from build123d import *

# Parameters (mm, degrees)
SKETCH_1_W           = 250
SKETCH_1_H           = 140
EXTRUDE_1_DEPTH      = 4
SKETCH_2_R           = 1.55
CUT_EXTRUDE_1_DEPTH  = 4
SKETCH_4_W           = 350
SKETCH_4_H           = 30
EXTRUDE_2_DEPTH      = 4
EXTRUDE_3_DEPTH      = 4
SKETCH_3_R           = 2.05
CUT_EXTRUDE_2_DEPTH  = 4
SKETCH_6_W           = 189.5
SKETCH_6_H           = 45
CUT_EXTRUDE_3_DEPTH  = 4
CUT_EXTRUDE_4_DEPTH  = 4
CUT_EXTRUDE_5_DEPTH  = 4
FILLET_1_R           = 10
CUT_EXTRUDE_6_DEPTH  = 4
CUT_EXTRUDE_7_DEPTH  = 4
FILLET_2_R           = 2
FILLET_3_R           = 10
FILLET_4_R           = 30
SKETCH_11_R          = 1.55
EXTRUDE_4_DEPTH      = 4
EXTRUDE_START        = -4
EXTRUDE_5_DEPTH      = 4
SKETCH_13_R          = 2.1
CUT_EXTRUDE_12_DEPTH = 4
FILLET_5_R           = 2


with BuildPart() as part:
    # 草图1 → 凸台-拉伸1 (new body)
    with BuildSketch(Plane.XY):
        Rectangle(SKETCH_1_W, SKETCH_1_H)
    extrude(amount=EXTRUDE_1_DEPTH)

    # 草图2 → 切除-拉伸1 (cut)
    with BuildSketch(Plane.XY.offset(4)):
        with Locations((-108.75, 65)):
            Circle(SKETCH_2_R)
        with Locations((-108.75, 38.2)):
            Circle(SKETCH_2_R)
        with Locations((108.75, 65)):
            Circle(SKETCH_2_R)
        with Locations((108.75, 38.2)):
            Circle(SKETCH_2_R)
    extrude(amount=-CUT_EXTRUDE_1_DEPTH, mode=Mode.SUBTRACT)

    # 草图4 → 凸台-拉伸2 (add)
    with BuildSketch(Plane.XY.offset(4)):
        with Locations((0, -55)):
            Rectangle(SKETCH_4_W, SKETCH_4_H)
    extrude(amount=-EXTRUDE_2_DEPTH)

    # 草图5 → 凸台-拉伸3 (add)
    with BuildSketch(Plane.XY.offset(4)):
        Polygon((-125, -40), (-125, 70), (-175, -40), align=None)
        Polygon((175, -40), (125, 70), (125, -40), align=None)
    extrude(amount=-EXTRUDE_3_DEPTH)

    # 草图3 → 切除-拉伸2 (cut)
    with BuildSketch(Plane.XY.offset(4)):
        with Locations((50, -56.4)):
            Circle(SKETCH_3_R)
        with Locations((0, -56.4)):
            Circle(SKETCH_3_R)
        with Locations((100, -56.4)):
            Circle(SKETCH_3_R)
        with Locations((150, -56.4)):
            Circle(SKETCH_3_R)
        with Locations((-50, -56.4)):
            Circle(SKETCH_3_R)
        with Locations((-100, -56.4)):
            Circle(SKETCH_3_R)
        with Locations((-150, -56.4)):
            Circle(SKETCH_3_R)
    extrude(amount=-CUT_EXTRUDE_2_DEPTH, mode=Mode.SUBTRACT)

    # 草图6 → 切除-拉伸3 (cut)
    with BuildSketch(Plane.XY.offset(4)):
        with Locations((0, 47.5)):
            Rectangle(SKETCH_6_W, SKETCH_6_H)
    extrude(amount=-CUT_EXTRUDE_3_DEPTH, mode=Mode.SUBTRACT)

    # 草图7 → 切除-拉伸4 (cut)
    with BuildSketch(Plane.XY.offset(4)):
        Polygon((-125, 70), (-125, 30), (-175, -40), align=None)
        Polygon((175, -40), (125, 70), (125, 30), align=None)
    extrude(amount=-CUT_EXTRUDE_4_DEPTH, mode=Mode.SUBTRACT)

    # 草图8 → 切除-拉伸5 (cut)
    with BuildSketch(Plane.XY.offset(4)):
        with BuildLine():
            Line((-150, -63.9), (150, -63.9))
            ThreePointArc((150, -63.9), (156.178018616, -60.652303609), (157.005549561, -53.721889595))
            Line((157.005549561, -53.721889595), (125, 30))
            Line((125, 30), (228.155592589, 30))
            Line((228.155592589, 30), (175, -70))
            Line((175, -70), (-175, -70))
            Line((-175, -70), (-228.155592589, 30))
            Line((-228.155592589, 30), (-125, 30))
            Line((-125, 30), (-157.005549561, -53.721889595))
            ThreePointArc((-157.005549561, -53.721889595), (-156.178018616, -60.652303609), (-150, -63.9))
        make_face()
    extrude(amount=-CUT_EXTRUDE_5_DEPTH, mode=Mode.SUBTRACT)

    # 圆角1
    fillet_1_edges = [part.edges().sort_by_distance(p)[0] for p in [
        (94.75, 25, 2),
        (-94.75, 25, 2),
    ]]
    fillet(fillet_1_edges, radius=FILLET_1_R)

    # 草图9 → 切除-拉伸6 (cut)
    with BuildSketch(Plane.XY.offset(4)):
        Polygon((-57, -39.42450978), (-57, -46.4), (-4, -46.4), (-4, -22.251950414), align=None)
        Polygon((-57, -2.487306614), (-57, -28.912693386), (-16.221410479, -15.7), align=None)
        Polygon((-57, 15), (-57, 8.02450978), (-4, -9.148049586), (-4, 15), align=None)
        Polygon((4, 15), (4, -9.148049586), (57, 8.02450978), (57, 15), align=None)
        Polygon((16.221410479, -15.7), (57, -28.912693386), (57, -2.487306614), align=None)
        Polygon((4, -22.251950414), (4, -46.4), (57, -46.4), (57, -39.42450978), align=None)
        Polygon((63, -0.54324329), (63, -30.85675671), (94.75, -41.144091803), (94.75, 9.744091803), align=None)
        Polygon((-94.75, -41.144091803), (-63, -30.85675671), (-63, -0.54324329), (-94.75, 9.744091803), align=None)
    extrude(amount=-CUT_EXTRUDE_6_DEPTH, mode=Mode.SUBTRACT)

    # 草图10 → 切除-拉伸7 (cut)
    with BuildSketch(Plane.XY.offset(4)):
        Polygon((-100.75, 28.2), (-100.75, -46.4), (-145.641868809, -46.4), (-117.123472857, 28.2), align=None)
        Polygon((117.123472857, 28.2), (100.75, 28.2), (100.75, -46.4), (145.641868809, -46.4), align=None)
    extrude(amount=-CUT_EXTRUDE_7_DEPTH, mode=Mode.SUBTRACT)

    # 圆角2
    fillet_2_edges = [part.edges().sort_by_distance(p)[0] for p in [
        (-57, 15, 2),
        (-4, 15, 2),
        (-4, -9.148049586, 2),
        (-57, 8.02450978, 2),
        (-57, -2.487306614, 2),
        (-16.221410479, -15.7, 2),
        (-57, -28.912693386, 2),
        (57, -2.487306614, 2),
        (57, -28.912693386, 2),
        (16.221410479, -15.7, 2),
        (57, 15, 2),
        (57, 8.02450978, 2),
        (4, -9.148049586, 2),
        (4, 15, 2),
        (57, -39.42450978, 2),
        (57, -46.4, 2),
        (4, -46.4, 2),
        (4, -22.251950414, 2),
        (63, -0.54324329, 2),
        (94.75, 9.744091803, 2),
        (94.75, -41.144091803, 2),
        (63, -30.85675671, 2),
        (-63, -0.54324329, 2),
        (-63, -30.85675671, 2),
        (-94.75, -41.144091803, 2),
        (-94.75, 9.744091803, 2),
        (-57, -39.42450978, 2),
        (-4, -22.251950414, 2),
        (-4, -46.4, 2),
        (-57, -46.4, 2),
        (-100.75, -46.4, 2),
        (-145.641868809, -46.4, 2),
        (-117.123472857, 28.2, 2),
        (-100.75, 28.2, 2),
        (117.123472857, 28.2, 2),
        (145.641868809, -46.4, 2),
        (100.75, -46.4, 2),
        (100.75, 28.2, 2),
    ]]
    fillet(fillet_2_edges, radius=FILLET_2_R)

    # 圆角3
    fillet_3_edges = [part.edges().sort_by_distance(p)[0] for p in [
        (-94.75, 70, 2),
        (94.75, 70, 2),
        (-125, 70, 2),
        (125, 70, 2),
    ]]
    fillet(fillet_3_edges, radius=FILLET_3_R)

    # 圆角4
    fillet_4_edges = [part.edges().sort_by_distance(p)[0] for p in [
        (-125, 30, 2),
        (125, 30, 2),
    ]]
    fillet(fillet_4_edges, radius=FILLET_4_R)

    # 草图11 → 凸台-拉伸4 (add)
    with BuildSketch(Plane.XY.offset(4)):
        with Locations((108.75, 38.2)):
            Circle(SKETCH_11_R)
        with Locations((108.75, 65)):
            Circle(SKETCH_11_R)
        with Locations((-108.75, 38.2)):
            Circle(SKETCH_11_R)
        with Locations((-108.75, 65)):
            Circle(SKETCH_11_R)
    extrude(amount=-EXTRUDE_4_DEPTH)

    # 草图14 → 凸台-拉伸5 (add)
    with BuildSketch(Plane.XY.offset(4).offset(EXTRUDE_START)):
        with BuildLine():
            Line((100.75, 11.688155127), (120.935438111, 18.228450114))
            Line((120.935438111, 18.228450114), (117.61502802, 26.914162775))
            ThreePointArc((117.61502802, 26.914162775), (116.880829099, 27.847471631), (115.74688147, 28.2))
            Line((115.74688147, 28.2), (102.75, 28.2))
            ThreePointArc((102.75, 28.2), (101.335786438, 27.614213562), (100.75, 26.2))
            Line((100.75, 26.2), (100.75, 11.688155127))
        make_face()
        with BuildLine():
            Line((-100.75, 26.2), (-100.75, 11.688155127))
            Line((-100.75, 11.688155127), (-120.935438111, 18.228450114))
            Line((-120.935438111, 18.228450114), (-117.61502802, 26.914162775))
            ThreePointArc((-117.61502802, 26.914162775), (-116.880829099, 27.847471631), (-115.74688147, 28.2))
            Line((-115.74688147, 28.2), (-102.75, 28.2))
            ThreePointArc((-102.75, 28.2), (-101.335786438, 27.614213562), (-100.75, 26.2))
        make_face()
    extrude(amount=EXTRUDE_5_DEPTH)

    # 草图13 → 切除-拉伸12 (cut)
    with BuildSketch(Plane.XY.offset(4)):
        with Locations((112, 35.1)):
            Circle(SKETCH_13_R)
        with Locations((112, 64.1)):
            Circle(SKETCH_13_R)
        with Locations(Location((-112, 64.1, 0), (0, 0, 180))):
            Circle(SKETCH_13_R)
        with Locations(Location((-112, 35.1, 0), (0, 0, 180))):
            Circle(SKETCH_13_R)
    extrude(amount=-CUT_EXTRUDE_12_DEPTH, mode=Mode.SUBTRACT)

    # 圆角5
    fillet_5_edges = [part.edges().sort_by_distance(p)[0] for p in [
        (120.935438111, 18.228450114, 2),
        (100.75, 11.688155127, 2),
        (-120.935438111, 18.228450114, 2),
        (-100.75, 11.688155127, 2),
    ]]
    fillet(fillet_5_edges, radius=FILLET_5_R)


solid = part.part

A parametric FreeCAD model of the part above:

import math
import FreeCAD as App
import Part
import Sketcher
from FreeCAD import Vector
Q = App.Units.Quantity


def edges_at(feature, points):
    """Names of the edges that pass closest to the given points."""
    edges = feature.Shape.Edges
    near = lambda p: min(range(len(edges)), key=lambda i: edges[i].distToShape(Part.Vertex(*p))[0])
    return sorted({f"Edge{near(p) + 1}" for p in points})


def add_polygon(sketch, points):
    """Adds a closed chain of lines whose ends are joined by coincident constraints."""
    first, n = sketch.GeometryCount, len(points)
    for a, b in zip(points, points[1:] + points[:1]):
        sketch.addGeometry(Part.LineSegment(App.Vector(*a, 0), App.Vector(*b, 0)), False)
    for i in range(n):
        sketch.addConstraint(Sketcher.Constraint("Coincident", first + i, 2, first + (i + 1) % n, 1))

doc = App.newDocument("Part")
body = doc.addObject("PartDesign::Body", "Body")

# Sketch on XY plane
sketch1 = doc.addObject("Sketcher::SketchObject", "Sketch")
body.addObject(sketch1)
sketch1.AttachmentSupport = (doc.XY_Plane, [""])
sketch1.MapMode = "FlatFace"
add_polygon(sketch1, [(-125, 70), (-125, -70), (125, -70), (125, 70)])  # lines 0-3
sketch1.addConstraint(Sketcher.Constraint("Vertical", 0))
sketch1.addConstraint(Sketcher.Constraint("Horizontal", 1))
sketch1.addConstraint(Sketcher.Constraint("Vertical", 2))
sketch1.addConstraint(Sketcher.Constraint("Horizontal", 3))
sketch1.addConstraint(Sketcher.Constraint("Symmetric", 0, 2, 2, 2, -1, 1))
sketch1.addConstraint(Sketcher.Constraint("DistanceX", 1, 1, 1, 2, Q("250 mm")))
sketch1.addConstraint(Sketcher.Constraint("DistanceY", 0, 2, 0, 1, Q("140 mm")))
pad1 = doc.addObject("PartDesign::Pad", "Pad")
body.addObject(pad1)
pad1.Profile = sketch1
pad1.Length = 4

# Sketch on XY plane
sketch2 = doc.addObject("Sketcher::SketchObject", "Sketch001")
body.addObject(sketch2)
sketch2.AttachmentSupport = (doc.XY_Plane, [""])
sketch2.MapMode = "FlatFace"
sketch2.AttachmentOffset = App.Placement(Vector(0, 0, 4), App.Rotation())
sketch2.addGeometry(Part.Circle(Vector(-108.75, 65, 0), Vector(0, 0, 1), 1.55), False)
sketch2.addGeometry(Part.Circle(Vector(-108.75, 38.2, 0), Vector(0, 0, 1), 1.55), False)
sketch2.addGeometry(Part.Circle(Vector(108.75, 65, 0), Vector(0, 0, 1), 1.55), False)
sketch2.addGeometry(Part.Circle(Vector(108.75, 38.2, 0), Vector(0, 0, 1), 1.55), False)
sketch2.addConstraint(Sketcher.Constraint("Equal", 0, 1))
sketch2.addConstraint(Sketcher.Constraint("Equal", 1, 2))
sketch2.addConstraint(Sketcher.Constraint("Equal", 2, 3))
sketch2.addConstraint(Sketcher.Constraint("Symmetric", 0, 3, 2, 3, -2))
sketch2.addConstraint(Sketcher.Constraint("Symmetric", 1, 3, 3, 3, -2))
sketch2.addConstraint(Sketcher.Constraint("Vertical", 0, 3, 1, 3))
sketch2.addConstraint(Sketcher.Constraint("Diameter", 0, Q("3.1 mm")))
sketch2.addConstraint(Sketcher.Constraint("DistanceY", -1, 1, 0, 3, Q("65 mm")))
sketch2.addConstraint(Sketcher.Constraint("DistanceY", -1, 1, 1, 3, Q("38.2 mm")))
sketch2.addConstraint(Sketcher.Constraint("DistanceX", 0, 3, 2, 3, Q("217.5 mm")))
pocket1 = doc.addObject("PartDesign::Pocket", "Pocket")
body.addObject(pocket1)
pocket1.Profile = sketch2
pocket1.Length = 4

# Sketch on XY plane
sketch3 = doc.addObject("Sketcher::SketchObject", "Sketch002")
body.addObject(sketch3)
sketch3.AttachmentSupport = (doc.XY_Plane, [""])
sketch3.MapMode = "FlatFace"
sketch3.AttachmentOffset = App.Placement(Vector(0, 0, 4), App.Rotation())
add_polygon(sketch3, [(-175, -40), (-175, -70), (175, -70), (175, -40)])  # lines 0-3
sketch3.addConstraint(Sketcher.Constraint("Vertical", 0))
sketch3.addConstraint(Sketcher.Constraint("Horizontal", 1))
sketch3.addConstraint(Sketcher.Constraint("Vertical", 2))
sketch3.addConstraint(Sketcher.Constraint("Horizontal", 3))
sketch3.addConstraint(Sketcher.Constraint("DistanceX", 1, 1, 1, 2, Q("350 mm")))
sketch3.addConstraint(Sketcher.Constraint("DistanceY", 0, 2, 0, 1, Q("30 mm")))
sketch3.addConstraint(Sketcher.Constraint("DistanceX", 0, 2, -1, 1, Q("175 mm")))
sketch3.addConstraint(Sketcher.Constraint("DistanceY", 0, 2, -1, 1, Q("70 mm")))
pad2 = doc.addObject("PartDesign::Pad", "Pad001")
body.addObject(pad2)
pad2.Profile = sketch3
pad2.Length = 4
pad2.Reversed = True

# Sketch on XY plane
sketch4 = doc.addObject("Sketcher::SketchObject", "Sketch003")
body.addObject(sketch4)
sketch4.AttachmentSupport = (doc.XY_Plane, [""])
sketch4.MapMode = "FlatFace"
sketch4.AttachmentOffset = App.Placement(Vector(0, 0, 4), App.Rotation())
add_polygon(sketch4, [(-125, -40), (-125, 70), (-175, -40)])  # lines 0-2
add_polygon(sketch4, [(175, -40), (125, 70), (125, -40)])  # lines 3-5
sketch4.addConstraint(Sketcher.Constraint("Vertical", 0))
sketch4.addConstraint(Sketcher.Constraint("Horizontal", 2))
sketch4.addConstraint(Sketcher.Constraint("Vertical", 4))
sketch4.addConstraint(Sketcher.Constraint("Horizontal", 5))
sketch4.addConstraint(Sketcher.Constraint("Symmetric", 0, 2, 3, 2, -2))
sketch4.addConstraint(Sketcher.Constraint("Symmetric", 1, 2, 5, 2, -2))
sketch4.addConstraint(Sketcher.Constraint("DistanceX", 2, 1, 2, 2, Q("50 mm")))
sketch4.addConstraint(Sketcher.Constraint("DistanceY", 0, 1, 0, 2, Q("110 mm")))
sketch4.addConstraint(Sketcher.Constraint("DistanceX", 0, 2, -1, 1, Q("125 mm")))
sketch4.addConstraint(Sketcher.Constraint("DistanceY", -1, 1, 0, 2, Q("70 mm")))
pad3 = doc.addObject("PartDesign::Pad", "Pad002")
body.addObject(pad3)
pad3.Profile = sketch4
pad3.Length = 4
pad3.Reversed = True

# Sketch on XY plane
sketch5 = doc.addObject("Sketcher::SketchObject", "Sketch004")
body.addObject(sketch5)
sketch5.AttachmentSupport = (doc.XY_Plane, [""])
sketch5.MapMode = "FlatFace"
sketch5.AttachmentOffset = App.Placement(Vector(0, 0, 4), App.Rotation())
sketch5.addGeometry(Part.Circle(Vector(50, -56.4, 0), Vector(0, 0, 1), 2.05), False)
sketch5.addGeometry(Part.Circle(Vector(0, -56.4, 0), Vector(0, 0, 1), 2.05), False)
sketch5.addGeometry(Part.Circle(Vector(100, -56.4, 0), Vector(0, 0, 1), 2.05), False)
sketch5.addGeometry(Part.Circle(Vector(150, -56.4, 0), Vector(0, 0, 1), 2.05), False)
sketch5.addGeometry(Part.Circle(Vector(-50, -56.4, 0), Vector(0, 0, 1), 2.05), False)
sketch5.addGeometry(Part.Circle(Vector(-100, -56.4, 0), Vector(0, 0, 1), 2.05), False)
sketch5.addGeometry(Part.Circle(Vector(-150, -56.4, 0), Vector(0, 0, 1), 2.05), False)
sketch5.addConstraint(Sketcher.Constraint("Equal", 0, 1))
sketch5.addConstraint(Sketcher.Constraint("Equal", 1, 2))
sketch5.addConstraint(Sketcher.Constraint("Equal", 2, 3))
sketch5.addConstraint(Sketcher.Constraint("Equal", 3, 4))
sketch5.addConstraint(Sketcher.Constraint("Equal", 4, 5))
sketch5.addConstraint(Sketcher.Constraint("Equal", 5, 6))
sketch5.addConstraint(Sketcher.Constraint("Symmetric", 0, 3, 4, 3, -2))
sketch5.addConstraint(Sketcher.Constraint("Symmetric", 2, 3, 5, 3, -2))
sketch5.addConstraint(Sketcher.Constraint("Symmetric", 3, 3, 6, 3, -2))
sketch5.addConstraint(Sketcher.Constraint("PointOnObject", 1, 3, -2))
sketch5.addConstraint(Sketcher.Constraint("Horizontal", 0, 3, 1, 3))
sketch5.addConstraint(Sketcher.Constraint("Horizontal", 1, 3, 2, 3))
sketch5.addConstraint(Sketcher.Constraint("Horizontal", 2, 3, 3, 3))
sketch5.addConstraint(Sketcher.Constraint("Diameter", 0, Q("4.1 mm")))
sketch5.addConstraint(Sketcher.Constraint("DistanceX", -1, 1, 0, 3, Q("50 mm")))
sketch5.addConstraint(Sketcher.Constraint("DistanceX", -1, 1, 2, 3, Q("100 mm")))
sketch5.addConstraint(Sketcher.Constraint("DistanceX", -1, 1, 3, 3, Q("150 mm")))
sketch5.addConstraint(Sketcher.Constraint("DistanceY", 0, 3, -1, 1, Q("56.4 mm")))
pocket2 = doc.addObject("PartDesign::Pocket", "Pocket001")
body.addObject(pocket2)
pocket2.Profile = sketch5
pocket2.Length = 4

# Sketch on XY plane
sketch6 = doc.addObject("Sketcher::SketchObject", "Sketch005")
body.addObject(sketch6)
sketch6.AttachmentSupport = (doc.XY_Plane, [""])
sketch6.MapMode = "FlatFace"
sketch6.AttachmentOffset = App.Placement(Vector(0, 0, 4), App.Rotation())
add_polygon(sketch6, [(-94.75, 70), (-94.75, 25), (94.75, 25), (94.75, 70)])  # lines 0-3
sketch6.addConstraint(Sketcher.Constraint("Vertical", 0))
sketch6.addConstraint(Sketcher.Constraint("Horizontal", 1))
sketch6.addConstraint(Sketcher.Constraint("Vertical", 2))
sketch6.addConstraint(Sketcher.Constraint("Horizontal", 3))
sketch6.addConstraint(Sketcher.Constraint("DistanceY", 0, 2, 0, 1, Q("45 mm")))
sketch6.addConstraint(Sketcher.Constraint("DistanceX", 1, 1, 1, 2, Q("189.5 mm")))
sketch6.addConstraint(Sketcher.Constraint("DistanceY", -1, 1, 0, 2, Q("25 mm")))
sketch6.addConstraint(Sketcher.Constraint("DistanceX", 0, 2, -1, 1, Q("94.75 mm")))
pocket3 = doc.addObject("PartDesign::Pocket", "Pocket002")
body.addObject(pocket3)
pocket3.Profile = sketch6
pocket3.Length = 4

# Sketch on XY plane
sketch7 = doc.addObject("Sketcher::SketchObject", "Sketch006")
body.addObject(sketch7)
sketch7.AttachmentSupport = (doc.XY_Plane, [""])
sketch7.MapMode = "FlatFace"
sketch7.AttachmentOffset = App.Placement(Vector(0, 0, 4), App.Rotation())
add_polygon(sketch7, [(-125, 30), (-125, 70), (-175, -40)])  # lines 0-2
add_polygon(sketch7, [(175, -40), (125, 70), (125, 30)])  # lines 3-5
sketch7.addConstraint(Sketcher.Constraint("Vertical", 0))
sketch7.addConstraint(Sketcher.Constraint("Vertical", 4))
sketch7.addConstraint(Sketcher.Constraint("Symmetric", 0, 2, 3, 2, -2))
sketch7.addConstraint(Sketcher.Constraint("Symmetric", 1, 2, 5, 2, -2))
sketch7.addConstraint(Sketcher.Constraint("Horizontal", 2, 2, 4, 2))
sketch7.addConstraint(Sketcher.Constraint("DistanceY", 0, 1, 0, 2, Q("40 mm")))
sketch7.addConstraint(Sketcher.Constraint("DistanceX", 0, 2, -1, 1, Q("125 mm")))
sketch7.addConstraint(Sketcher.Constraint("DistanceY", -1, 1, 0, 2, Q("70 mm")))
sketch7.addConstraint(Sketcher.Constraint("DistanceX", 1, 2, -1, 1, Q("175 mm")))
sketch7.addConstraint(Sketcher.Constraint("DistanceY", 1, 2, -1, 1, Q("40 mm")))
pocket4 = doc.addObject("PartDesign::Pocket", "Pocket003")
body.addObject(pocket4)
pocket4.Profile = sketch7
pocket4.Length = 4

# Sketch on XY plane
sketch8 = doc.addObject("Sketcher::SketchObject", "Sketch007")
body.addObject(sketch8)
sketch8.AttachmentSupport = (doc.XY_Plane, [""])
sketch8.MapMode = "FlatFace"
sketch8.AttachmentOffset = App.Placement(Vector(0, 0, 4), App.Rotation())
sketch8.addGeometry(Part.LineSegment(Vector(150, -63.9, 0), Vector(-150, -63.9, 0)), False)
sketch8.addGeometry(Part.ArcOfCircle(Part.Circle(Vector(-150, -56.4, 0), Vector(0, 0, 1), 7.5), math.radians(159.078938), math.radians(270)), False)
sketch8.addGeometry(Part.LineSegment(Vector(-157.00555, -53.72189, 0), Vector(-125, 30, 0)), False)
sketch8.addGeometry(Part.LineSegment(Vector(-125, 30, 0), Vector(-228.155593, 30, 0)), False)
sketch8.addGeometry(Part.LineSegment(Vector(-228.155593, 30, 0), Vector(-175, -70, 0)), False)
sketch8.addGeometry(Part.LineSegment(Vector(-175, -70, 0), Vector(175, -70, 0)), False)
sketch8.addGeometry(Part.LineSegment(Vector(175, -70, 0), Vector(228.155593, 30, 0)), False)
sketch8.addGeometry(Part.LineSegment(Vector(228.155593, 30, 0), Vector(125, 30, 0)), False)
sketch8.addGeometry(Part.LineSegment(Vector(125, 30, 0), Vector(157.00555, -53.72189, 0)), False)
sketch8.addGeometry(Part.ArcOfCircle(Part.Circle(Vector(150, -56.4, 0), Vector(0, 0, 1), 7.5), math.radians(-90), math.radians(20.921062)), False)
sketch8.addConstraint(Sketcher.Constraint("Tangent", 0, 2, 1, 2))
sketch8.addConstraint(Sketcher.Constraint("Tangent", 1, 1, 2, 1))
sketch8.addConstraint(Sketcher.Constraint("Coincident", 2, 2, 3, 1))
sketch8.addConstraint(Sketcher.Constraint("Coincident", 3, 2, 4, 1))
sketch8.addConstraint(Sketcher.Constraint("Coincident", 4, 2, 5, 1))
sketch8.addConstraint(Sketcher.Constraint("Coincident", 5, 2, 6, 1))
sketch8.addConstraint(Sketcher.Constraint("Coincident", 6, 2, 7, 1))
sketch8.addConstraint(Sketcher.Constraint("Coincident", 7, 2, 8, 1))
sketch8.addConstraint(Sketcher.Constraint("Tangent", 8, 2, 9, 2))
sketch8.addConstraint(Sketcher.Constraint("Tangent", 9, 1, 0, 1))
sketch8.addConstraint(Sketcher.Constraint("Horizontal", 0))
sketch8.addConstraint(Sketcher.Constraint("Horizontal", 3))
sketch8.addConstraint(Sketcher.Constraint("Horizontal", 5))
sketch8.addConstraint(Sketcher.Constraint("Horizontal", 7))
sketch8.addConstraint(Sketcher.Constraint("Equal", 1, 9))
sketch8.addConstraint(Sketcher.Constraint("Symmetric", 3, 2, 6, 2, -2))
sketch8.addConstraint(Sketcher.Constraint("Symmetric", 1, 1, 8, 2, -2))
sketch8.addConstraint(Sketcher.Constraint("Equal", 4, 6))
sketch8.addConstraint(Sketcher.Constraint("Radius", 1, Q("7.5 mm")))
sketch8.addConstraint(Sketcher.Constraint("DistanceX", 0, 2, 0, 1, Q("300 mm")))
sketch8.addConstraint(Sketcher.Constraint("DistanceX", 5, 1, 5, 2, Q("350 mm")))
sketch8.addConstraint(Sketcher.Constraint("DistanceX", 2, 2, -1, 1, Q("125 mm")))
sketch8.addConstraint(Sketcher.Constraint("DistanceY", -1, 1, 2, 2, Q("30 mm")))
sketch8.addConstraint(Sketcher.Constraint("DistanceY", 4, 2, -1, 1, Q("70 mm")))
sketch8.addConstraint(Sketcher.Constraint("DistanceY", 1, 3, -1, 1, Q("56.4 mm")))
sketch8.addConstraint(Sketcher.Constraint("Distance", 4, Q("113.249799 mm")))
pocket5 = doc.addObject("PartDesign::Pocket", "Pocket004")
body.addObject(pocket5)
pocket5.Profile = sketch8
pocket5.Length = 4
doc.recompute()

fillet = doc.addObject("PartDesign::Fillet", "Fillet")
body.addObject(fillet)
fillet.Base = (pocket5, edges_at(pocket5, [(94.75, 25, 2), (-94.75, 25, 2)]))
fillet.Radius = 10

# Sketch on XY plane
sketch9 = doc.addObject("Sketcher::SketchObject", "Sketch008")
body.addObject(sketch9)
sketch9.AttachmentSupport = (doc.XY_Plane, [""])
sketch9.MapMode = "FlatFace"
sketch9.AttachmentOffset = App.Placement(Vector(0, 0, 4), App.Rotation())
add_polygon(sketch9, [(-57, -39.42451), (-57, -46.4), (-4, -46.4), (-4, -22.25195)])  # lines 0-3
add_polygon(sketch9, [(-57, -2.487307), (-57, -28.912693), (-16.22141, -15.7)])  # lines 4-6
add_polygon(sketch9, [(-57, 15), (-57, 8.02451), (-4, -9.14805), (-4, 15)])  # lines 7-10
add_polygon(sketch9, [(4, 15), (4, -9.14805), (57, 8.02451), (57, 15)])  # lines 11-14
add_polygon(sketch9, [(16.22141, -15.7), (57, -28.912693), (57, -2.487307)])  # lines 15-17
add_polygon(sketch9, [(4, -22.25195), (4, -46.4), (57, -46.4), (57, -39.42451)])  # lines 18-21
add_polygon(sketch9, [(63, -0.543243), (63, -30.856757), (94.75, -41.144092), (94.75, 9.744092)])  # lines 22-25
add_polygon(sketch9, [(-94.75, -41.144092), (-63, -30.856757), (-63, -0.543243), (-94.75, 9.744092)])  # lines 26-29
sketch9.addConstraint(Sketcher.Constraint("Vertical", 0))
sketch9.addConstraint(Sketcher.Constraint("Horizontal", 1))
sketch9.addConstraint(Sketcher.Constraint("Vertical", 2))
sketch9.addConstraint(Sketcher.Constraint("Vertical", 4))
sketch9.addConstraint(Sketcher.Constraint("Vertical", 7))
sketch9.addConstraint(Sketcher.Constraint("Vertical", 9))
sketch9.addConstraint(Sketcher.Constraint("Horizontal", 10))
sketch9.addConstraint(Sketcher.Constraint("Vertical", 11))
sketch9.addConstraint(Sketcher.Constraint("Vertical", 13))
sketch9.addConstraint(Sketcher.Constraint("Horizontal", 14))
sketch9.addConstraint(Sketcher.Constraint("Vertical", 16))
sketch9.addConstraint(Sketcher.Constraint("Vertical", 18))
sketch9.addConstraint(Sketcher.Constraint("Horizontal", 19))
sketch9.addConstraint(Sketcher.Constraint("Vertical", 20))
sketch9.addConstraint(Sketcher.Constraint("Vertical", 22))
sketch9.addConstraint(Sketcher.Constraint("Vertical", 24))
sketch9.addConstraint(Sketcher.Constraint("Vertical", 27))
sketch9.addConstraint(Sketcher.Constraint("Vertical", 29))
sketch9.addConstraint(Sketcher.Constraint("Symmetric", 8, 2, 11, 2, -2))
sketch9.addConstraint(Sketcher.Constraint("Symmetric", 7, 2, 12, 2, -2))
sketch9.addConstraint(Sketcher.Constraint("Symmetric", 4, 2, 15, 2, -2))
sketch9.addConstraint(Sketcher.Constraint("Symmetric", 5, 2, 17, 2, -2))
sketch9.addConstraint(Sketcher.Constraint("Symmetric", 1, 2, 18, 2, -2))
sketch9.addConstraint(Sketcher.Constraint("Symmetric", 3, 2, 20, 2, -2))
sketch9.addConstraint(Sketcher.Constraint("Symmetric", 22, 2, 26, 2, -2))
sketch9.addConstraint(Sketcher.Constraint("Symmetric", 24, 2, 28, 2, -2))
sketch9.addConstraint(Sketcher.Constraint("Parallel", 3, 5))
sketch9.addConstraint(Sketcher.Constraint("Parallel", 6, 8))
sketch9.addConstraint(Sketcher.Constraint("Parallel", 5, 12))
sketch9.addConstraint(Sketcher.Constraint("Parallel", 12, 17))
sketch9.addConstraint(Sketcher.Constraint("Parallel", 15, 21))
sketch9.addConstraint(Sketcher.Constraint("Parallel", 21, 23))
sketch9.addConstraint(Sketcher.Constraint("Parallel", 17, 25))
sketch9.addConstraint(Sketcher.Constraint("Parallel", 25, 26))
sketch9.addConstraint(Sketcher.Constraint("Parallel", 23, 28))
sketch9.addConstraint(Sketcher.Constraint("Horizontal", 10, 2, 13, 2))
sketch9.addConstraint(Sketcher.Constraint("Vertical", 3, 2, 4, 2))
sketch9.addConstraint(Sketcher.Constraint("Vertical", 6, 2, 7, 2))
sketch9.addConstraint(Sketcher.Constraint("Vertical", 2, 2, 8, 2))
sketch9.addConstraint(Sketcher.Constraint("Equal", 0, 7))
sketch9.addConstraint(Sketcher.Constraint("DistanceX", 1, 1, 1, 2, Q("53 mm")))
sketch9.addConstraint(Sketcher.Constraint("DistanceX", 0, 2, -1, 1, Q("57 mm")))
sketch9.addConstraint(Sketcher.Constraint("DistanceY", -1, 1, 9, 2, Q("15 mm")))
sketch9.addConstraint(Sketcher.Constraint("DistanceX", -1, 1, 22, 2, Q("63 mm")))
sketch9.addConstraint(Sketcher.Constraint("DistanceY", 0, 2, -1, 1, Q("46.4 mm")))
sketch9.addConstraint(Sketcher.Constraint("DistanceY", 5, 2, -1, 1, Q("15.7 mm")))
sketch9.addConstraint(Sketcher.Constraint("DistanceX", -1, 1, 23, 2, Q("94.75 mm")))
sketch9.addConstraint(Sketcher.Constraint("DistanceY", 0, 2, 0, 1, Q("6.97549 mm")))
sketch9.addConstraint(Sketcher.Constraint("DistanceY", 2, 1, 2, 2, Q("24.14805 mm")))
sketch9.addConstraint(Sketcher.Constraint("DistanceY", 23, 2, 15, 2, Q("12.231398 mm")))
sketch9.addConstraint(Sketcher.Constraint("DistanceY", 16, 2, 24, 2, Q("12.231398 mm")))
sketch9.addConstraint(Sketcher.Constraint("DistanceY", 4, 2, 4, 1, Q("26.425387 mm")))
pocket6 = doc.addObject("PartDesign::Pocket", "Pocket005")
body.addObject(pocket6)
pocket6.Profile = sketch9
pocket6.Length = 4

# Sketch on XY plane
sketch10 = doc.addObject("Sketcher::SketchObject", "Sketch009")
body.addObject(sketch10)
sketch10.AttachmentSupport = (doc.XY_Plane, [""])
sketch10.MapMode = "FlatFace"
sketch10.AttachmentOffset = App.Placement(Vector(0, 0, 4), App.Rotation())
add_polygon(sketch10, [(-100.75, -46.4), (-100.75, 28.2), (-117.123473, 28.2), (-145.641869, -46.4)])  # lines 0-3
add_polygon(sketch10, [(117.123473, 28.2), (100.75, 28.2), (100.75, -46.4), (145.641869, -46.4)])  # lines 4-7
sketch10.addConstraint(Sketcher.Constraint("Vertical", 0))
sketch10.addConstraint(Sketcher.Constraint("Horizontal", 1))
sketch10.addConstraint(Sketcher.Constraint("Horizontal", 3))
sketch10.addConstraint(Sketcher.Constraint("Horizontal", 4))
sketch10.addConstraint(Sketcher.Constraint("Vertical", 5))
sketch10.addConstraint(Sketcher.Constraint("Horizontal", 6))
sketch10.addConstraint(Sketcher.Constraint("Symmetric", 0, 2, 4, 2, -2))
sketch10.addConstraint(Sketcher.Constraint("Symmetric", 2, 2, 6, 2, -2))
sketch10.addConstraint(Sketcher.Constraint("Equal", 1, 4))
sketch10.addConstraint(Sketcher.Constraint("DistanceY", 0, 1, 0, 2, Q("74.6 mm")))
sketch10.addConstraint(Sketcher.Constraint("DistanceY", -1, 1, 0, 2, Q("28.2 mm")))
sketch10.addConstraint(Sketcher.Constraint("DistanceX", 0, 2, 4, 2, Q("201.5 mm")))
sketch10.addConstraint(Sketcher.Constraint("DistanceX", 3, 1, 3, 2, Q("44.891869 mm")))
sketch10.addConstraint(Sketcher.Constraint("DistanceX", 1, 2, 1, 1, Q("16.373473 mm")))
pocket7 = doc.addObject("PartDesign::Pocket", "Pocket006")
body.addObject(pocket7)
pocket7.Profile = sketch10
pocket7.Length = 4
doc.recompute()

fillet2 = doc.addObject("PartDesign::Fillet", "Fillet001")
body.addObject(fillet2)
fillet2.Base = (pocket7, edges_at(pocket7, [
    (-57, 15, 2),
    (-4, 15, 2),
    (-4, -9.148, 2),
    (-57, 8.025, 2),
    (-57, -2.487, 2),
    (-16.221, -15.7, 2),
    (-57, -28.913, 2),
    (57, -2.487, 2),
    (57, -28.913, 2),
    (16.221, -15.7, 2),
    (57, 15, 2),
    (57, 8.025, 2),
    (4, -9.148, 2),
    (4, 15, 2),
    (57, -39.425, 2),
    (57, -46.4, 2),
    (4, -46.4, 2),
    (4, -22.252, 2),
    (63, -0.543, 2),
    (94.75, 9.744, 2),
    (94.75, -41.144, 2),
    (63, -30.857, 2),
    (-63, -0.543, 2),
    (-63, -30.857, 2),
    (-94.75, -41.144, 2),
    (-94.75, 9.744, 2),
    (-57, -39.425, 2),
    (-4, -22.252, 2),
    (-4, -46.4, 2),
    (-57, -46.4, 2),
    (-100.75, -46.4, 2),
    (-145.642, -46.4, 2),
    (-117.123, 28.2, 2),
    (-100.75, 28.2, 2),
    (117.123, 28.2, 2),
    (145.642, -46.4, 2),
    (100.75, -46.4, 2),
    (100.75, 28.2, 2),
]))
fillet2.Radius = 2
doc.recompute()

fillet3 = doc.addObject("PartDesign::Fillet", "Fillet002")
body.addObject(fillet3)
fillet3.Base = (fillet2, edges_at(fillet2, [
    (-94.75, 70, 2),
    (94.75, 70, 2),
    (-125, 70, 2),
    (125, 70, 2),
]))
fillet3.Radius = 10
doc.recompute()

fillet4 = doc.addObject("PartDesign::Fillet", "Fillet003")
body.addObject(fillet4)
fillet4.Base = (fillet3, edges_at(fillet3, [(-125, 30, 2), (125, 30, 2)]))
fillet4.Radius = 30

# Sketch on XY plane
sketch11 = doc.addObject("Sketcher::SketchObject", "Sketch010")
body.addObject(sketch11)
sketch11.AttachmentSupport = (doc.XY_Plane, [""])
sketch11.MapMode = "FlatFace"
sketch11.AttachmentOffset = App.Placement(Vector(0, 0, 4), App.Rotation())
sketch11.addGeometry(Part.Circle(Vector(108.75, 38.2, 0), Vector(0, 0, 1), 1.55), False)
sketch11.addGeometry(Part.Circle(Vector(108.75, 65, 0), Vector(0, 0, 1), 1.55), False)
sketch11.addGeometry(Part.Circle(Vector(-108.75, 38.2, 0), Vector(0, 0, 1), 1.55), False)
sketch11.addGeometry(Part.Circle(Vector(-108.75, 65, 0), Vector(0, 0, 1), 1.55), False)
sketch11.addConstraint(Sketcher.Constraint("Equal", 0, 1))
sketch11.addConstraint(Sketcher.Constraint("Equal", 1, 2))
sketch11.addConstraint(Sketcher.Constraint("Equal", 2, 3))
sketch11.addConstraint(Sketcher.Constraint("Symmetric", 0, 3, 2, 3, -2))
sketch11.addConstraint(Sketcher.Constraint("Symmetric", 1, 3, 3, 3, -2))
sketch11.addConstraint(Sketcher.Constraint("Vertical", 0, 3, 1, 3))
sketch11.addConstraint(Sketcher.Constraint("Diameter", 0, Q("3.1 mm")))
sketch11.addConstraint(Sketcher.Constraint("DistanceY", -1, 1, 1, 3, Q("65 mm")))
sketch11.addConstraint(Sketcher.Constraint("DistanceY", -1, 1, 0, 3, Q("38.2 mm")))
sketch11.addConstraint(Sketcher.Constraint("DistanceX", 2, 3, 0, 3, Q("217.5 mm")))
pad4 = doc.addObject("PartDesign::Pad", "Pad003")
body.addObject(pad4)
pad4.Profile = sketch11
pad4.Length = 4
pad4.Reversed = True

# Sketch on XY plane
sketch12 = doc.addObject("Sketcher::SketchObject", "Sketch011")
body.addObject(sketch12)
sketch12.AttachmentSupport = (doc.XY_Plane, [""])
sketch12.MapMode = "FlatFace"
sketch12.addGeometry(Part.LineSegment(Vector(100.75, 11.688155, 0), Vector(120.935438, 18.22845, 0)), False)
sketch12.addGeometry(Part.LineSegment(Vector(120.935438, 18.22845, 0), Vector(117.615028, 26.914163, 0)), False)
sketch12.addGeometry(Part.ArcOfCircle(Part.Circle(Vector(115.746881, 26.2, 0), Vector(0, 0, 1), 2), math.radians(20.921062), math.radians(90)), False)
sketch12.addGeometry(Part.LineSegment(Vector(115.746881, 28.2, 0), Vector(102.75, 28.2, 0)), False)
sketch12.addGeometry(Part.ArcOfCircle(Part.Circle(Vector(102.75, 26.2, 0), Vector(0, 0, 1), 2), math.radians(90), math.radians(180)), False)
sketch12.addGeometry(Part.LineSegment(Vector(100.75, 26.2, 0), Vector(100.75, 11.688155, 0)), False)
sketch12.addGeometry(Part.LineSegment(Vector(-100.75, 11.688155, 0), Vector(-100.75, 26.2, 0)), False)
sketch12.addGeometry(Part.ArcOfCircle(Part.Circle(Vector(-102.75, 26.2, 0), Vector(0, 0, 1), 2), math.radians(0), math.radians(90)), False)
sketch12.addGeometry(Part.LineSegment(Vector(-102.75, 28.2, 0), Vector(-115.746881, 28.2, 0)), False)
sketch12.addGeometry(Part.ArcOfCircle(Part.Circle(Vector(-115.746881, 26.2, 0), Vector(0, 0, 1), 2), math.radians(90), math.radians(159.078938)), False)
sketch12.addGeometry(Part.LineSegment(Vector(-117.615028, 26.914163, 0), Vector(-120.935438, 18.22845, 0)), False)
sketch12.addGeometry(Part.LineSegment(Vector(-120.935438, 18.22845, 0), Vector(-100.75, 11.688155, 0)), False)
sketch12.addConstraint(Sketcher.Constraint("Coincident", 0, 2, 1, 1))
sketch12.addConstraint(Sketcher.Constraint("Tangent", 1, 2, 2, 1))
sketch12.addConstraint(Sketcher.Constraint("Tangent", 2, 2, 3, 1))
sketch12.addConstraint(Sketcher.Constraint("Tangent", 3, 2, 4, 1))
sketch12.addConstraint(Sketcher.Constraint("Tangent", 4, 2, 5, 1))
sketch12.addConstraint(Sketcher.Constraint("Coincident", 5, 2, 0, 1))
sketch12.addConstraint(Sketcher.Constraint("Tangent", 6, 2, 7, 1))
sketch12.addConstraint(Sketcher.Constraint("Tangent", 7, 2, 8, 1))
sketch12.addConstraint(Sketcher.Constraint("Tangent", 8, 2, 9, 1))
sketch12.addConstraint(Sketcher.Constraint("Tangent", 9, 2, 10, 1))
sketch12.addConstraint(Sketcher.Constraint("Coincident", 10, 2, 11, 1))
sketch12.addConstraint(Sketcher.Constraint("Coincident", 11, 2, 6, 1))
sketch12.addConstraint(Sketcher.Constraint("Horizontal", 3))
sketch12.addConstraint(Sketcher.Constraint("Vertical", 5))
sketch12.addConstraint(Sketcher.Constraint("Vertical", 6))
sketch12.addConstraint(Sketcher.Constraint("Horizontal", 8))
sketch12.addConstraint(Sketcher.Constraint("Equal", 2, 4))
sketch12.addConstraint(Sketcher.Constraint("Equal", 4, 7))
sketch12.addConstraint(Sketcher.Constraint("Equal", 7, 9))
sketch12.addConstraint(Sketcher.Constraint("Symmetric", 4, 3, 7, 3, -2))
sketch12.addConstraint(Sketcher.Constraint("Symmetric", 1, 2, 9, 2, -2))
sketch12.addConstraint(Sketcher.Constraint("Horizontal", 0, 2, 10, 2))
sketch12.addConstraint(Sketcher.Constraint("Horizontal", 5, 2, 11, 2))
sketch12.addConstraint(Sketcher.Constraint("Radius", 2, Q("2 mm")))
sketch12.addConstraint(Sketcher.Constraint("DistanceY", -1, 1, 2, 3, Q("26.2 mm")))
sketch12.addConstraint(Sketcher.Constraint("DistanceX", 7, 3, 4, 3, Q("205.5 mm")))
sketch12.addConstraint(Sketcher.Constraint("DistanceX", 3, 2, 3, 1, Q("12.996881 mm")))
sketch12.addConstraint(Sketcher.Constraint("Distance", 0, Q("21.218562 mm")))
sketch12.addConstraint(Sketcher.Constraint("Distance", 1, Q("9.298749 mm")))
sketch12.addConstraint(Sketcher.Constraint("DistanceY", 5, 2, 5, 1, Q("14.511845 mm")))
pad5 = doc.addObject("PartDesign::Pad", "Pad004")
body.addObject(pad5)
pad5.Profile = sketch12
pad5.Length = 4

# Sketch on XY plane
sketch13 = doc.addObject("Sketcher::SketchObject", "Sketch012")
body.addObject(sketch13)
sketch13.AttachmentSupport = (doc.XY_Plane, [""])
sketch13.MapMode = "FlatFace"
sketch13.AttachmentOffset = App.Placement(Vector(0, 0, 4), App.Rotation())
sketch13.addGeometry(Part.Circle(Vector(112, 35.1, 0), Vector(0, 0, 1), 2.1), False)
sketch13.addGeometry(Part.Circle(Vector(112, 64.1, 0), Vector(0, 0, 1), 2.1), False)
sketch13.addGeometry(Part.Circle(Vector(-112, 64.1, 0), Vector(0, 0, 1), 2.1), False)
sketch13.addGeometry(Part.Circle(Vector(-112, 35.1, 0), Vector(0, 0, 1), 2.1), False)
sketch13.addConstraint(Sketcher.Constraint("Equal", 0, 1))
sketch13.addConstraint(Sketcher.Constraint("Equal", 1, 2))
sketch13.addConstraint(Sketcher.Constraint("Equal", 2, 3))
sketch13.addConstraint(Sketcher.Constraint("Symmetric", 1, 3, 2, 3, -2))
sketch13.addConstraint(Sketcher.Constraint("Symmetric", 0, 3, 3, 3, -2))
sketch13.addConstraint(Sketcher.Constraint("Vertical", 0, 3, 1, 3))
sketch13.addConstraint(Sketcher.Constraint("Diameter", 0, Q("4.2 mm")))
sketch13.addConstraint(Sketcher.Constraint("DistanceX", -1, 1, 0, 3, Q("112 mm")))
sketch13.addConstraint(Sketcher.Constraint("DistanceY", 0, 3, 1, 3, Q("29 mm")))
sketch13.addConstraint(Sketcher.Constraint("DistanceY", -1, 1, 0, 3, Q("35.1 mm")))
pocket8 = doc.addObject("PartDesign::Pocket", "Pocket007")
body.addObject(pocket8)
pocket8.Profile = sketch13
pocket8.Length = 4
doc.recompute()

fillet5 = doc.addObject("PartDesign::Fillet", "Fillet004")
body.addObject(fillet5)
fillet5.Base = (pocket8, edges_at(pocket8, [
    (120.935, 18.228, 2),
    (100.75, 11.688, 2),
    (-120.935, 18.228, 2),
    (-100.75, 11.688, 2),
]))
fillet5.Radius = 2

doc.recompute()
